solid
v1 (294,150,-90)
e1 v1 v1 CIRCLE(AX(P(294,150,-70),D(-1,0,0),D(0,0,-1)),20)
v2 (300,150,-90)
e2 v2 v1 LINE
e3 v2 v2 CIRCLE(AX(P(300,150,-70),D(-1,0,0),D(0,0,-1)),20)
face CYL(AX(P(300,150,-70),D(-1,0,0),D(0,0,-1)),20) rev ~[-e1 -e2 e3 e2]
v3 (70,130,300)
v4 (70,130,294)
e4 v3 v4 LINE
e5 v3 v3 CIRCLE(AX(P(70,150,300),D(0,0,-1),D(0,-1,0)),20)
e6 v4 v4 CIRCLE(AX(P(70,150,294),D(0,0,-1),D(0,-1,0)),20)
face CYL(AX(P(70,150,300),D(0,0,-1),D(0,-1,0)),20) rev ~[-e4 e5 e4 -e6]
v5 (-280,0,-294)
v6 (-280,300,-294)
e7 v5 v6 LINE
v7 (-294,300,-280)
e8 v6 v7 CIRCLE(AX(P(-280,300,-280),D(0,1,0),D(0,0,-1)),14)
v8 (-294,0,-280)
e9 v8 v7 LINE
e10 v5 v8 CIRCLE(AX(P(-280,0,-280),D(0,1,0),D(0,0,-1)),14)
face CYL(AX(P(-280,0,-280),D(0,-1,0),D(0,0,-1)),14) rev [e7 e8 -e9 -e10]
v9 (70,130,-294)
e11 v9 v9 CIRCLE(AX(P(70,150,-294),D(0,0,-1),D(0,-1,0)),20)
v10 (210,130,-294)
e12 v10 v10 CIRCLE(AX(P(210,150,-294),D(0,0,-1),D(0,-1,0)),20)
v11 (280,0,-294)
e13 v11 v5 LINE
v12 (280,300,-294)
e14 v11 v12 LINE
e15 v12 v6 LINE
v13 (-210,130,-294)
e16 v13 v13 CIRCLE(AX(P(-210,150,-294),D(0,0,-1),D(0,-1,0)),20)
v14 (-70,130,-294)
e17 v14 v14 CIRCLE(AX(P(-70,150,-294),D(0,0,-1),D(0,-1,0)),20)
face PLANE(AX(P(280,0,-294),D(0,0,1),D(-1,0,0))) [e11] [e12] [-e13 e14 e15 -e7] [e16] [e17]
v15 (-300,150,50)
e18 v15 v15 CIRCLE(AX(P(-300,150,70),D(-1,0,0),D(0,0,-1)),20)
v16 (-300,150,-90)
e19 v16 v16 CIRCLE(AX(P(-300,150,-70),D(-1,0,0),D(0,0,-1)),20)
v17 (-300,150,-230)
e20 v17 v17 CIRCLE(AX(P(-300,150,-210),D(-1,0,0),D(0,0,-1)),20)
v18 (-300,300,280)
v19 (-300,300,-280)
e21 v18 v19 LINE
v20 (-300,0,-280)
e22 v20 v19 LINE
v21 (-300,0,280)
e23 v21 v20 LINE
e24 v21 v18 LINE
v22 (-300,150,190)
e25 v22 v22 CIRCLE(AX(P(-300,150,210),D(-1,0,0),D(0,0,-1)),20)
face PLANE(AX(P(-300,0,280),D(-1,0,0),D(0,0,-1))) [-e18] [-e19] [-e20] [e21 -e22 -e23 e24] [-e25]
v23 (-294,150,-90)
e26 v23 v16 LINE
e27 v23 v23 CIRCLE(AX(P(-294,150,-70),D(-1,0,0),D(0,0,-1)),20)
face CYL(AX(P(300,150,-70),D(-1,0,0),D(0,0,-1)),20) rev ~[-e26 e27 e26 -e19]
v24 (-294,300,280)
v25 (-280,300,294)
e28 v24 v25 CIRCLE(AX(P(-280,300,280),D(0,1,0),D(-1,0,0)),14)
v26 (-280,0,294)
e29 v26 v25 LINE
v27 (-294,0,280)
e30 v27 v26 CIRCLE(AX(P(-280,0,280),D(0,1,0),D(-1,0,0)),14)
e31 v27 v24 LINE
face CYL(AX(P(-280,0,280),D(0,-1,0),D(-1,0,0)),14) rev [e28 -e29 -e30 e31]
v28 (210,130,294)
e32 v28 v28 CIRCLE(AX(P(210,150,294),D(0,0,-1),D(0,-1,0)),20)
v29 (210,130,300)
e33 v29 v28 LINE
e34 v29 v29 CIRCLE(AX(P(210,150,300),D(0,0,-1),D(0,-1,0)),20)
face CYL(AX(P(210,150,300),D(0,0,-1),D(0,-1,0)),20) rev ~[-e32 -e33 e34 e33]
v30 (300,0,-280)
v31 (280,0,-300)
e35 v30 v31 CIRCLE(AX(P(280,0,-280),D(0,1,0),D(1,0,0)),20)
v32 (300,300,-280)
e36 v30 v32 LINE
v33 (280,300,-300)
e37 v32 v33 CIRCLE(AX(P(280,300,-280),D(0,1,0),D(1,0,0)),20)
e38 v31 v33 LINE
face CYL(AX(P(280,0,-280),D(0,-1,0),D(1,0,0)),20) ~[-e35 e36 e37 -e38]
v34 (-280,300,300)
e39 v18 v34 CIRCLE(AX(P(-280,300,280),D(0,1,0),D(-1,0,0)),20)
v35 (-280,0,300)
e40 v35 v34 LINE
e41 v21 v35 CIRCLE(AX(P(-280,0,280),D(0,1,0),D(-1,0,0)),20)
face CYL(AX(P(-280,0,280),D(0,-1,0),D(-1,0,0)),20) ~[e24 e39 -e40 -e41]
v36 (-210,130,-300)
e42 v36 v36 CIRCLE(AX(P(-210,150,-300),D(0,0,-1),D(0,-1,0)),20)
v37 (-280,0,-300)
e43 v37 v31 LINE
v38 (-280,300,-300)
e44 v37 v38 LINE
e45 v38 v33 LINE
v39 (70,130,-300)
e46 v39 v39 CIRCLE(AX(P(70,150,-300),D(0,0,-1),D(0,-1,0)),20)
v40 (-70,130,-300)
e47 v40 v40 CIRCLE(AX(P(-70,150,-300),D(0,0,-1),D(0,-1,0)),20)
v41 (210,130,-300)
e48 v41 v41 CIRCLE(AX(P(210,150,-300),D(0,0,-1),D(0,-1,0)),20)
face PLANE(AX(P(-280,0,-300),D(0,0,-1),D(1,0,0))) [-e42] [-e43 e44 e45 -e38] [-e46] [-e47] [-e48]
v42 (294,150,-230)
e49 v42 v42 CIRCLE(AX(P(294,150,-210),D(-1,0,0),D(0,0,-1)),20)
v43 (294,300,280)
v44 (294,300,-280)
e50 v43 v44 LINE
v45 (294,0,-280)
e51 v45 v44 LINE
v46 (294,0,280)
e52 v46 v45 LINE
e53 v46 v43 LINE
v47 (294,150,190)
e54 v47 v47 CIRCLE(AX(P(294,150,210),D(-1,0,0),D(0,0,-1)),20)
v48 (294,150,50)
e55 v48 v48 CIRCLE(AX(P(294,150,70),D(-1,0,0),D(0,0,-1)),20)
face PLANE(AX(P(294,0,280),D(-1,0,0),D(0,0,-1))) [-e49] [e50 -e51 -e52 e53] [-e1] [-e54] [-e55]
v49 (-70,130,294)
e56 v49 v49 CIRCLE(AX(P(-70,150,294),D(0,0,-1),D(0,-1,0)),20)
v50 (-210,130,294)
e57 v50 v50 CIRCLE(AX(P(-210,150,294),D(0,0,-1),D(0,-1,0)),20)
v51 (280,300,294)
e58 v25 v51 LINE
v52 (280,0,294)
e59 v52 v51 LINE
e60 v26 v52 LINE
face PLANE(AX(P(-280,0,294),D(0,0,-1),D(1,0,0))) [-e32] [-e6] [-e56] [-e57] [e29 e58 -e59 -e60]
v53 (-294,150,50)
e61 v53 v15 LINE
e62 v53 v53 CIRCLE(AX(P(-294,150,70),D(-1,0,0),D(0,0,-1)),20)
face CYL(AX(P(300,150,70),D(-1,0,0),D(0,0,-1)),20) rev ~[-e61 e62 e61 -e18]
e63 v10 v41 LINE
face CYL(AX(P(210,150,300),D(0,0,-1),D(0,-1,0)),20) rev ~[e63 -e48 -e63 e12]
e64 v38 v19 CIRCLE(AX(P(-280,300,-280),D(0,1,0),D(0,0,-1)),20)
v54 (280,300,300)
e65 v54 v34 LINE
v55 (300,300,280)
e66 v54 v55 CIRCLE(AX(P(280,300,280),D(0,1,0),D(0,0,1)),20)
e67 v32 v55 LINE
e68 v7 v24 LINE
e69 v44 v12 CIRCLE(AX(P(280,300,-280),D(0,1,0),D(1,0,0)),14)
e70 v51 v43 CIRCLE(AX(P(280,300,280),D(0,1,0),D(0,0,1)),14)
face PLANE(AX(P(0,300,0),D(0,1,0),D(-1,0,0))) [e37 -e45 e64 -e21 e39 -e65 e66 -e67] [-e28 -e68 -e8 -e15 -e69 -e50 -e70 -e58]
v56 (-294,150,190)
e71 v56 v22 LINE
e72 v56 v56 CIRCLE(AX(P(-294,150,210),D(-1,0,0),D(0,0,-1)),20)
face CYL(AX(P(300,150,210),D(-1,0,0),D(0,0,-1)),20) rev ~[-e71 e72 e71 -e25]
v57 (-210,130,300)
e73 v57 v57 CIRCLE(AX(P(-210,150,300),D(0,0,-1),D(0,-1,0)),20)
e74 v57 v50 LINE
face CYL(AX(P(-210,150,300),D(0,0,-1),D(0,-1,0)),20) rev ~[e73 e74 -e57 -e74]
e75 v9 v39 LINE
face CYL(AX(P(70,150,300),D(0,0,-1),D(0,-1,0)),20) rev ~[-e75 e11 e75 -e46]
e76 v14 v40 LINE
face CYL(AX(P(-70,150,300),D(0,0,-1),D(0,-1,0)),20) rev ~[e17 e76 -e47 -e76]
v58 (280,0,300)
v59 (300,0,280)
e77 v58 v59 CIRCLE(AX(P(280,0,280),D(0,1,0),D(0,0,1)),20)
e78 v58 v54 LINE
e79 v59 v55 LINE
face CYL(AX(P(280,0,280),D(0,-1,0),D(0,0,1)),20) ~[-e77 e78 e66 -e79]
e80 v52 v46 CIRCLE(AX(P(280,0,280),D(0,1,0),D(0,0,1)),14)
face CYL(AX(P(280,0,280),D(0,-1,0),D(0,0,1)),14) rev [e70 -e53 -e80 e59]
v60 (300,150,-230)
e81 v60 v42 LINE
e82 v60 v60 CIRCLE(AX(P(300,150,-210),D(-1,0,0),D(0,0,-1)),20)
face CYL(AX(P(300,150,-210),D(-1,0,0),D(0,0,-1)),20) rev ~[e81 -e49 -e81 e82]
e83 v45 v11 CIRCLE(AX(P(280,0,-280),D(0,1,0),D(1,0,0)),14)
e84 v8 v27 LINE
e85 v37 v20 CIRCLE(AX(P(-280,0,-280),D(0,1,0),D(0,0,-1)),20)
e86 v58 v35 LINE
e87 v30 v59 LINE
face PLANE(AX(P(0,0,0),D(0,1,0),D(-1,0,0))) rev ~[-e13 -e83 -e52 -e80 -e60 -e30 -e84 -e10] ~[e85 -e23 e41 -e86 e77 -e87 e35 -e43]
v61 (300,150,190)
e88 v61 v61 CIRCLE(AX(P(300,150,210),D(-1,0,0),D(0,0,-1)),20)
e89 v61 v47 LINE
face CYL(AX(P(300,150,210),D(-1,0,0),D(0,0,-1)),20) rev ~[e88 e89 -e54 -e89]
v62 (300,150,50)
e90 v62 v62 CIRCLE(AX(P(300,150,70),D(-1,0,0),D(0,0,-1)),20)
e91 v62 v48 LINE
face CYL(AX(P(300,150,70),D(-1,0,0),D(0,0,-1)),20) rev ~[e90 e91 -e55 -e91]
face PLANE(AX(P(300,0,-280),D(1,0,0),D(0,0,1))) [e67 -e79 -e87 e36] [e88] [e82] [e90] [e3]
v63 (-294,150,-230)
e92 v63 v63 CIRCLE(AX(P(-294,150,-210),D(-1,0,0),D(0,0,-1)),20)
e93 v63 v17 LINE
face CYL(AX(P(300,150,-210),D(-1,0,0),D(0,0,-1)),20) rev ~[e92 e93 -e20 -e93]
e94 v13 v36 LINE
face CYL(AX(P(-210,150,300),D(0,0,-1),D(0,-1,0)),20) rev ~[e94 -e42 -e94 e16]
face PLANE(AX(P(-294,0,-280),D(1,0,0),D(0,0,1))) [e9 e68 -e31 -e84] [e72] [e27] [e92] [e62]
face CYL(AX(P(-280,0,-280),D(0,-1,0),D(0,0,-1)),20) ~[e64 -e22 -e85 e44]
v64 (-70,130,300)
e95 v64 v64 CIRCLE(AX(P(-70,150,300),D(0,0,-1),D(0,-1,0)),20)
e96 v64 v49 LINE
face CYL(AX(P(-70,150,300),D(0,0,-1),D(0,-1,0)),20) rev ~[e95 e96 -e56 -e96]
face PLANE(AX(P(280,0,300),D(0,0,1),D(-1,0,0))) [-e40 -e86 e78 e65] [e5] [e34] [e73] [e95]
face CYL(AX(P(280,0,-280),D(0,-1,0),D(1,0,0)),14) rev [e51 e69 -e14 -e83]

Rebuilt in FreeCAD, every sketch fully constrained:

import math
import FreeCAD as App
import Part
import Sketcher

V = App.Vector

doc = App.newDocument("Part")
body = doc.addObject("PartDesign::Body", "Body")

# Sketch on XZ plane
sketch1 = body.newObject("Sketcher::SketchObject", "Sketch")
sketch1.AttachmentSupport = (doc.getObject("XZ_Plane"), [""])
sketch1.MapMode = "FlatFace"
sketch1.addGeometry([
    Part.LineSegment(V(-280, 300, 0), V(280, 300, 0)),  # 0
    Part.ArcOfCircle(Part.Circle(V(280, 280, 0), V(0, 0, 1), 20), math.radians(0), math.radians(90)),  # 1
    Part.LineSegment(V(300, 280, 0), V(300, -280, 0)),  # 2
    Part.ArcOfCircle(Part.Circle(V(280, -280, 0), V(0, 0, 1), 20), math.radians(-90), math.radians(0)),  # 3
    Part.LineSegment(V(280, -300, 0), V(-280, -300, 0)),  # 4
    Part.ArcOfCircle(Part.Circle(V(-280, -280, 0), V(0, 0, 1), 20), math.radians(180), math.radians(270)),  # 5
    Part.LineSegment(V(-300, -280, 0), V(-300, 280, 0)),  # 6
    Part.ArcOfCircle(Part.Circle(V(-280, 280, 0), V(0, 0, 1), 20), math.radians(90), math.radians(180)),  # 7
    Part.LineSegment(V(280, 294, 0), V(-280, 294, 0)),  # 8
    Part.ArcOfCircle(Part.Circle(V(-280, 280, 0), V(0, 0, 1), 14), math.radians(90), math.radians(180)),  # 9
    Part.LineSegment(V(-294, 280, 0), V(-294, -280, 0)),  # 10
    Part.ArcOfCircle(Part.Circle(V(-280, -280, 0), V(0, 0, 1), 14), math.radians(180), math.radians(270)),  # 11
    Part.LineSegment(V(-280, -294, 0), V(280, -294, 0)),  # 12
    Part.ArcOfCircle(Part.Circle(V(280, -280, 0), V(0, 0, 1), 14), math.radians(-90), math.radians(0)),  # 13
    Part.LineSegment(V(294, -280, 0), V(294, 280, 0)),  # 14
    Part.ArcOfCircle(Part.Circle(V(280, 280, 0), V(0, 0, 1), 14), math.radians(0), math.radians(90)),  # 15
], False)
sketch1.addConstraint([
    Sketcher.Constraint("Tangent", 0, 2, 1, 2),
    Sketcher.Constraint("Tangent", 1, 1, 2, 1),
    Sketcher.Constraint("Tangent", 2, 2, 3, 2),
    Sketcher.Constraint("Tangent", 3, 1, 4, 1),
    Sketcher.Constraint("Tangent", 4, 2, 5, 2),
    Sketcher.Constraint("Tangent", 5, 1, 6, 1),
    Sketcher.Constraint("Tangent", 6, 2, 7, 2),
    Sketcher.Constraint("Tangent", 7, 1, 0, 1),
    Sketcher.Constraint("Tangent", 8, 2, 9, 1),
    Sketcher.Constraint("Tangent", 9, 2, 10, 1),
    Sketcher.Constraint("Tangent", 10, 2, 11, 1),
    Sketcher.Constraint("Tangent", 11, 2, 12, 1),
    Sketcher.Constraint("Tangent", 12, 2, 13, 1),
    Sketcher.Constraint("Tangent", 13, 2, 14, 1),
    Sketcher.Constraint("Tangent", 14, 2, 15, 1),
    Sketcher.Constraint("Tangent", 15, 2, 8, 1),
    Sketcher.Constraint("Horizontal", 0),
    Sketcher.Constraint("Vertical", 2),
    Sketcher.Constraint("Horizontal", 4),
    Sketcher.Constraint("Vertical", 6),
    Sketcher.Constraint("Horizontal", 8),
    Sketcher.Constraint("Vertical", 10),
    Sketcher.Constraint("Horizontal", 12),
    Sketcher.Constraint("Vertical", 14),
    Sketcher.Constraint("Coincident", 9, 3, 7, 3),
    Sketcher.Constraint("Coincident", 11, 3, 5, 3),
    Sketcher.Constraint("Coincident", 13, 3, 3, 3),
    Sketcher.Constraint("Equal", 1, 3),
    Sketcher.Constraint("Equal", 3, 5),
    Sketcher.Constraint("Equal", 5, 7),
    Sketcher.Constraint("Equal", 13, 15),
    Sketcher.Constraint("Symmetric", 1, 3, 5, 3, -1, 1),
    Sketcher.Constraint("Equal", 12, 2),
    Sketcher.Constraint("Radius", 1, 20.0),
    Sketcher.Constraint("Radius", 9, 14.0),
    Sketcher.Constraint("DistanceX", 0, 1, 0, 2, 560.0),
])
pad1 = body.newObject("PartDesign::Pad", "Pad")
pad1.Profile = sketch1
pad1.Length = 300
pad1.Reversed = True

# Sketch on YZ plane
sketch2 = body.newObject("Sketcher::SketchObject", "Sketch001")
sketch2.AttachmentSupport = (doc.getObject("YZ_Plane"), [""])
sketch2.MapMode = "FlatFace"
sketch2.AttachmentOffset = App.Placement(V(0, 0, 300), App.Rotation())
sketch2.addGeometry([
    Part.Circle(V(150, 210, 0), V(0, 0, 1), 20),
    Part.Circle(V(150, 70, 0), V(0, 0, 1), 20),
    Part.Circle(V(150, -70, 0), V(0, 0, 1), 20),
    Part.Circle(V(150, -210, 0), V(0, 0, 1), 20),
], False)
sketch2.addConstraint([
    Sketcher.Constraint("Equal", 0, 1),
    Sketcher.Constraint("Equal", 1, 2),
    Sketcher.Constraint("Equal", 2, 3),
    Sketcher.Constraint("Symmetric", 1, 3, 2, 3, -1),
    Sketcher.Constraint("Symmetric", 0, 3, 3, 3, -1),
    Sketcher.Constraint("Vertical", 0, 3, 1, 3),
    Sketcher.Constraint("Diameter", 0, 40.0),
    Sketcher.Constraint("DistanceX", -1, 1, 0, 3, 150.0),
    Sketcher.Constraint("DistanceY", -1, 1, 0, 3, 210.0),
    Sketcher.Constraint("DistanceY", -1, 1, 1, 3, 70.0),
])
doc.recompute()
hole = body.newObject("PartDesign::Hole", "Hole")
hole.Profile = sketch2
hole.ThreadType = "None"
hole.Diameter = 40
hole.DepthType = "ThroughAll"

# Sketch on XY plane
sketch3 = body.newObject("Sketcher::SketchObject", "Sketch002")
sketch3.AttachmentSupport = (doc.getObject("XY_Plane"), [""])
sketch3.MapMode = "FlatFace"
sketch3.AttachmentOffset = App.Placement(V(0, 0, 300), App.Rotation())
sketch3.addGeometry([
    Part.Circle(V(-210, 150, 0), V(0, 0, 1), 20),
    Part.Circle(V(-70, 150, 0), V(0, 0, 1), 20),
    Part.Circle(V(70, 150, 0), V(0, 0, 1), 20),
    Part.Circle(V(210, 150, 0), V(0, 0, 1), 20),
], False)
sketch3.addConstraint([
    Sketcher.Constraint("Equal", 0, 1),
    Sketcher.Constraint("Equal", 1, 2),
    Sketcher.Constraint("Equal", 2, 3),
    Sketcher.Constraint("Symmetric", 1, 3, 2, 3, -2),
    Sketcher.Constraint("Symmetric", 0, 3, 3, 3, -2),
    Sketcher.Constraint("Horizontal", 0, 3, 1, 3),
    Sketcher.Constraint("Diameter", 0, 40.0),
    Sketcher.Constraint("DistanceX", 0, 3, -1, 1, 210.0),
    Sketcher.Constraint("DistanceY", -1, 1, 0, 3, 150.0),
    Sketcher.Constraint("DistanceX", 1, 3, -1, 1, 70.0),
])
doc.recompute()
hole2 = body.newObject("PartDesign::Hole", "Hole001")
hole2.Profile = sketch3
hole2.ThreadType = "None"
hole2.Diameter = 40
hole2.DepthType = "ThroughAll"

doc.recompute()
